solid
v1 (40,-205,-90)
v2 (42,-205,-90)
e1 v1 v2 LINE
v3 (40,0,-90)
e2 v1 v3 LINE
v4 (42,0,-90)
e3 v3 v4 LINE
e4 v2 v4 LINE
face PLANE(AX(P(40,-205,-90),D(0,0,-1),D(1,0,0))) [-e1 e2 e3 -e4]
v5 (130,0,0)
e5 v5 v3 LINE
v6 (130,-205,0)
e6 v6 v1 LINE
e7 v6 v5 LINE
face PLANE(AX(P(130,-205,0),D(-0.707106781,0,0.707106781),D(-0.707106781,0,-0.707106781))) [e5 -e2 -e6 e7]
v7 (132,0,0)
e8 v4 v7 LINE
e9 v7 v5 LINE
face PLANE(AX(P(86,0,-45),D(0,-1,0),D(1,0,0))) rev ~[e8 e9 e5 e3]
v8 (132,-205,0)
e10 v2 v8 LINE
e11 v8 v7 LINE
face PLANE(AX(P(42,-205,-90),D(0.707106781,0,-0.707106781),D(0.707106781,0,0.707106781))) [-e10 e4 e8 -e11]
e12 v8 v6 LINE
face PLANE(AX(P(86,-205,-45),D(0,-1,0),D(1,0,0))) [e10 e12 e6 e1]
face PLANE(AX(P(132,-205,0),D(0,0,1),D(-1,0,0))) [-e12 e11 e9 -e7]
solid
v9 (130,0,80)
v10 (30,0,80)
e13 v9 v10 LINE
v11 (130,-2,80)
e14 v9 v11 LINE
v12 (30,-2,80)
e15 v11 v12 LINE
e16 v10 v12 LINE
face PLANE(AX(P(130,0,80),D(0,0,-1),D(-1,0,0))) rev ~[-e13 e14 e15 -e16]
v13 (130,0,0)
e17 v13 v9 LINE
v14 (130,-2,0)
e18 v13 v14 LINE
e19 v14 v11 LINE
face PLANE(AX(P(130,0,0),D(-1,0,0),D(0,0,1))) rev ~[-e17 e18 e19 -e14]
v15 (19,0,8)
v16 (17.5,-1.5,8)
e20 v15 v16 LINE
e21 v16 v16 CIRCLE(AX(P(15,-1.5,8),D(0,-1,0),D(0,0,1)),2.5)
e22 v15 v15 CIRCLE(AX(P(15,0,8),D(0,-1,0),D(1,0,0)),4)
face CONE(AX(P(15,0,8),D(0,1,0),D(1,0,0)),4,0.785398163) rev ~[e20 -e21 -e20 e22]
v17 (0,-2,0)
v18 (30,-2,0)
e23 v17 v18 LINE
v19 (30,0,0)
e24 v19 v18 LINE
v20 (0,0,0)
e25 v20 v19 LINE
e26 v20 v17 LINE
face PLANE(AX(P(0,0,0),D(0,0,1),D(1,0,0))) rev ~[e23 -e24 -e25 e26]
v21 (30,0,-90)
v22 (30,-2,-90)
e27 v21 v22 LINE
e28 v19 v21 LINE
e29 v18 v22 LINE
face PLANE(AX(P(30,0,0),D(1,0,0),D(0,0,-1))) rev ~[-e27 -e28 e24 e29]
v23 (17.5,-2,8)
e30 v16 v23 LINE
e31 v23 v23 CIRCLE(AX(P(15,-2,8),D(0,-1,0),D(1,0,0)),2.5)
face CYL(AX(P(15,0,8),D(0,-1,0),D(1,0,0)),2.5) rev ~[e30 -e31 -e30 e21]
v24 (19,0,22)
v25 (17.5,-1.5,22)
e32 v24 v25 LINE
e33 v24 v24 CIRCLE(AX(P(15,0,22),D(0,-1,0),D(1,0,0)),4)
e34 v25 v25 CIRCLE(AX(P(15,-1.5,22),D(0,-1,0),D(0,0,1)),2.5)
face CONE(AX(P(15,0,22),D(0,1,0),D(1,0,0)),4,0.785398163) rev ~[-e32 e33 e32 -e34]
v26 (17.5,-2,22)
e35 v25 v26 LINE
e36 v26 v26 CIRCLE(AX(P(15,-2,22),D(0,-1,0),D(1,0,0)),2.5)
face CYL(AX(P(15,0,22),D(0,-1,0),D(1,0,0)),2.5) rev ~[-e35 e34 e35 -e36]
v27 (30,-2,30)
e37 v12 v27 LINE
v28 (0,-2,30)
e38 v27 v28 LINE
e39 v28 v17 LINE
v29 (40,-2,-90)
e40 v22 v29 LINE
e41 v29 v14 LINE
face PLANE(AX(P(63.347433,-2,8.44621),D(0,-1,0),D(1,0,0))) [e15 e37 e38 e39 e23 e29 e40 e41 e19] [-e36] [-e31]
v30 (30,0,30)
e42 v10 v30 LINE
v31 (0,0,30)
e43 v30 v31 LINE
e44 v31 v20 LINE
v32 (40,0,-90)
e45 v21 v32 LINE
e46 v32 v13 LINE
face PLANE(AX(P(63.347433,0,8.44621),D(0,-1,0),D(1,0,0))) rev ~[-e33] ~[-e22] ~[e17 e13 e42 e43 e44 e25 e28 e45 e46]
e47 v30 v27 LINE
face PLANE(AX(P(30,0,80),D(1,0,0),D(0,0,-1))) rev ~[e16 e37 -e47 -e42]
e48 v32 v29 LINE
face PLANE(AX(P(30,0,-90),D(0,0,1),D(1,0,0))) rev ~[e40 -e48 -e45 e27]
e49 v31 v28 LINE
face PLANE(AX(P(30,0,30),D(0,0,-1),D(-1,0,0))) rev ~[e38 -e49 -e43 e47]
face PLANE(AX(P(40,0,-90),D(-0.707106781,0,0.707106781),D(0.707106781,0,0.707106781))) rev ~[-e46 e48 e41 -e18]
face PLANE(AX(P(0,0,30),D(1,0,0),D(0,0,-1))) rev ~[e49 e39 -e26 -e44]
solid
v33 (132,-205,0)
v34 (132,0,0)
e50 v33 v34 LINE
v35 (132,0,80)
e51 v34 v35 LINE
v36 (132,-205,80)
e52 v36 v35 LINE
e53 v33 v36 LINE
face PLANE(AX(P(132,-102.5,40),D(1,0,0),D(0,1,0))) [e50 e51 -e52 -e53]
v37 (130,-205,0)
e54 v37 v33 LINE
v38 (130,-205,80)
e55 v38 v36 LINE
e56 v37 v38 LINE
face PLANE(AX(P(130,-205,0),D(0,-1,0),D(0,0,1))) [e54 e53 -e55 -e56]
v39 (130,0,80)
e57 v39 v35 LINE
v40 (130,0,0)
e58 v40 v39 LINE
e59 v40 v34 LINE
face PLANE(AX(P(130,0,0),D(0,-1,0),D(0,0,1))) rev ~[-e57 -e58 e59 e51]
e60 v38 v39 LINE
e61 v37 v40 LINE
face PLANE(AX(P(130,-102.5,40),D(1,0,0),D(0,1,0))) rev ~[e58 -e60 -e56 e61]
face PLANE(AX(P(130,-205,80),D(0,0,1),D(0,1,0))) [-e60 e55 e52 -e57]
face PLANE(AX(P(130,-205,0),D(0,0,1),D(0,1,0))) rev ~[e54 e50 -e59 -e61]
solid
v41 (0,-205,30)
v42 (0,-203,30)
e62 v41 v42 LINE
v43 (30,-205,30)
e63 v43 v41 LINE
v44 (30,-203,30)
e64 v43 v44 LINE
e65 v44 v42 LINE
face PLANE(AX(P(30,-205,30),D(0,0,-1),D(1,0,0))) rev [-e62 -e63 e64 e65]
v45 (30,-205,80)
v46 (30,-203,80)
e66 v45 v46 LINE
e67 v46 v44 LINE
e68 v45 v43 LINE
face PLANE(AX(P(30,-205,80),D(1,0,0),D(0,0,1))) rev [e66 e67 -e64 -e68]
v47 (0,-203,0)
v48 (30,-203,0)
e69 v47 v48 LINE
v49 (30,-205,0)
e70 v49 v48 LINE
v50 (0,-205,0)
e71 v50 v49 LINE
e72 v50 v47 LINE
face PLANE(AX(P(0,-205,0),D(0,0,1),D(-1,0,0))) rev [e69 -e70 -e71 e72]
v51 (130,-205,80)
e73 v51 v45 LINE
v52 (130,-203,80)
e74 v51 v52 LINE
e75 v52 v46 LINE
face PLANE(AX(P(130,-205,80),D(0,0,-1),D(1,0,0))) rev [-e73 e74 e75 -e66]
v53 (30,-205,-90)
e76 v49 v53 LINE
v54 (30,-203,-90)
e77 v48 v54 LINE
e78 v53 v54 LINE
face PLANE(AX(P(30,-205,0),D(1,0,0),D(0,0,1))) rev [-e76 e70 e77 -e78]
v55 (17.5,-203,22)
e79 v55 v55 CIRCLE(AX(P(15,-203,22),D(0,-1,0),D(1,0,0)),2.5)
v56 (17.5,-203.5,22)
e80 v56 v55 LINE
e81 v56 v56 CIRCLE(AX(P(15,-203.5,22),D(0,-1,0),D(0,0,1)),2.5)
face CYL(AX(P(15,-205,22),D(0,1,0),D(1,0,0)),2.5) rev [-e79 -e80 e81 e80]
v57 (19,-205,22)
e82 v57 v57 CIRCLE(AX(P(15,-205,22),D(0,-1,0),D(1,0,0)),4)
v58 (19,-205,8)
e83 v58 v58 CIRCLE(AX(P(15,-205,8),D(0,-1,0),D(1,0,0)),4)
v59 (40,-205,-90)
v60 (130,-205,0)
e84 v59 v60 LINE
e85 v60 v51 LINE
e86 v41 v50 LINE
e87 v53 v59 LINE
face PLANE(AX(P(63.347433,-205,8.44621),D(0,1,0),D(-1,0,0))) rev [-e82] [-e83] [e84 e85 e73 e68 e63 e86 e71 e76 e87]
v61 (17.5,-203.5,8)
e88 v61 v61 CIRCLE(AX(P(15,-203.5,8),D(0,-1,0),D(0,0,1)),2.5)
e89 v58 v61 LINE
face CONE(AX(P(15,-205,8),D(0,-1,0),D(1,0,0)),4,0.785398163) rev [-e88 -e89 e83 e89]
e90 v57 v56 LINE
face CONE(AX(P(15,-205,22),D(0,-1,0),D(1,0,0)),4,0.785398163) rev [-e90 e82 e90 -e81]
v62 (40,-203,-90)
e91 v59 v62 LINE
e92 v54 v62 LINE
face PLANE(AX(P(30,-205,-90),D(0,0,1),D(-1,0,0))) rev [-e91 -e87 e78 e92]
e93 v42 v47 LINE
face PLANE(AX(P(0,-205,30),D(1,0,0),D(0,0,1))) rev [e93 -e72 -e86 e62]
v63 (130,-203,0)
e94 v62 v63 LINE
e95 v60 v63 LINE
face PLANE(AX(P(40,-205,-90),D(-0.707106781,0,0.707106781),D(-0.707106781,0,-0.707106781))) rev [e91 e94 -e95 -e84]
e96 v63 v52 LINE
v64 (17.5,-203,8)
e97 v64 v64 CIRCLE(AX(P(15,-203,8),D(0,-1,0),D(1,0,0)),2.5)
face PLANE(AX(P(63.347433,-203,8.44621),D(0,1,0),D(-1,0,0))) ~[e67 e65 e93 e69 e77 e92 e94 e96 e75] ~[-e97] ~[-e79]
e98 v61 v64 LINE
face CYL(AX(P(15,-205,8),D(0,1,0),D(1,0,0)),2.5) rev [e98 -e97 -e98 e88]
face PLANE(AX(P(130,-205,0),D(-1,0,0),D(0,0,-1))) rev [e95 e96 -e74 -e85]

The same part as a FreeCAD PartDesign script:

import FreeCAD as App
import Part
import Sketcher
Q = App.Units.Quantity

doc = App.newDocument("Part")
body = doc.addObject("PartDesign::Body", "Body")

# Sketch on XZ plane
sketch1 = doc.addObject("Sketcher::SketchObject", "Sketch")
body.addObject(sketch1)
sketch1.AttachmentSupport = (doc.XZ_Plane, [""])
sketch1.MapMode = "FlatFace"
sketch1.addGeometry([
    Part.LineSegment(App.Vector(0, 30, 0), App.Vector(0, 0, 0)),  # 0
    Part.LineSegment(App.Vector(0, 0, 0), App.Vector(30, 0, 0)),  # 1
    Part.LineSegment(App.Vector(30, 0, 0), App.Vector(30, -90, 0)),  # 2
    Part.LineSegment(App.Vector(30, -90, 0), App.Vector(40, -90, 0)),  # 3
    Part.LineSegment(App.Vector(40, -90, 0), App.Vector(130, 0, 0)),  # 4
    Part.LineSegment(App.Vector(130, 0, 0), App.Vector(130, 80, 0)),  # 5
    Part.LineSegment(App.Vector(130, 80, 0), App.Vector(30, 80, 0)),  # 6
    Part.LineSegment(App.Vector(30, 80, 0), App.Vector(30, 30, 0)),  # 7
    Part.LineSegment(App.Vector(30, 30, 0), App.Vector(0, 30, 0)),  # 8
], False)
sketch1.addConstraint([
    Sketcher.Constraint("Coincident", 0, 2, 1, 1),
    Sketcher.Constraint("Coincident", 1, 2, 2, 1),
    Sketcher.Constraint("Coincident", 2, 2, 3, 1),
    Sketcher.Constraint("Coincident", 3, 2, 4, 1),
    Sketcher.Constraint("Coincident", 4, 2, 5, 1),
    Sketcher.Constraint("Coincident", 5, 2, 6, 1),
    Sketcher.Constraint("Coincident", 6, 2, 7, 1),
    Sketcher.Constraint("Coincident", 7, 2, 8, 1),
    Sketcher.Constraint("Coincident", 8, 2, 0, 1),
    Sketcher.Constraint("Vertical", 0),
    Sketcher.Constraint("Horizontal", 1),
    Sketcher.Constraint("Vertical", 2),
    Sketcher.Constraint("Horizontal", 3),
    Sketcher.Constraint("Vertical", 5),
    Sketcher.Constraint("Horizontal", 6),
    Sketcher.Constraint("Vertical", 7),
    Sketcher.Constraint("Horizontal", 8),
    Sketcher.Constraint("Coincident", 0, 2, -1, 1),
    Sketcher.Constraint("PointOnObject", 4, 2, -1),
    Sketcher.Constraint("Vertical", 2, 2, 6, 2),
    Sketcher.Constraint("Equal", 8, 0),
    Sketcher.Constraint("DistanceX", 1, 1, 1, 2, 30.0),
    Sketcher.Constraint("DistanceX", 3, 1, 3, 2, 10.0),
    Sketcher.Constraint("DistanceX", 6, 2, 6, 1, 100.0),
    Sketcher.Constraint("DistanceY", 2, 2, 2, 1, 90.0),
    Sketcher.Constraint("DistanceY", 5, 1, 5, 2, 80.0),
])
pad1 = doc.addObject("PartDesign::Pad", "Pad")
body.addObject(pad1)
pad1.Profile = sketch1
pad1.Length = 2

# Sketch on XZ plane
sketch2 = doc.addObject("Sketcher::SketchObject", "Sketch001")
body.addObject(sketch2)
sketch2.AttachmentSupport = (doc.XZ_Plane, [""])
sketch2.MapMode = "FlatFace"
sketch2.addGeometry([
    Part.Circle(App.Vector(15, 22, 0), App.Vector(0, 0, 1), 2.5),
    Part.Circle(App.Vector(15, 8, 0), App.Vector(0, 0, 1), 2.5),
], False)
sketch2.addConstraint([
    Sketcher.Constraint("Equal", 0, 1),
    Sketcher.Constraint("Vertical", 0, 3, 1, 3),
    Sketcher.Constraint("Diameter", 0, 5.0),
    Sketcher.Constraint("DistanceX", -1, 1, 0, 3, 15.0),
    Sketcher.Constraint("DistanceY", -1, 1, 0, 3, 22.0),
    Sketcher.Constraint("DistanceY", -1, 1, 1, 3, 8.0),
])
doc.recompute()
hole = doc.addObject("PartDesign::Hole", "Hole")
body.addObject(hole)
hole.Profile = sketch2
hole.ThreadType = "None"
hole.Diameter = 5
hole.DepthType = "Dimension"
hole.Depth = 10
hole.DrillPoint = "Flat"
hole.HoleCutType = "Countersink"
hole.HoleCutDiameter = 8
hole.HoleCutCountersinkAngle = 90
hole.Reversed = True
body2 = doc.addObject("PartDesign::Body", "Body001")
doc.recompute()

mirroring = doc.addObject("Part::Mirroring", "Mirroring")
mirroring.Source = body
mirroring.Base = App.Vector(0, -102.5, 0)
mirroring.Normal = App.Vector(0, -1, 0)
body2.BaseFeature = mirroring
doc.recompute()
body3 = doc.addObject("PartDesign::Body", "Body002")

# Sketch on YZ plane
sketch3 = doc.addObject("Sketcher::SketchObject", "Sketch002")
body3.addObject(sketch3)
sketch3.AttachmentSupport = (doc.getObject("YZ_Plane002"), [""])
sketch3.MapMode = "FlatFace"
sketch3.AttachmentOffset = App.Placement(App.Vector(0, 0, 130), App.Rotation())
sketch3.addGeometry([
    Part.LineSegment(App.Vector(-205, 80, 0), App.Vector(-205, 0, 0)),
    Part.LineSegment(App.Vector(-205, 0, 0), App.Vector(0, 0, 0)),
    Part.LineSegment(App.Vector(0, 0, 0), App.Vector(0, 80, 0)),
    Part.LineSegment(App.Vector(0, 80, 0), App.Vector(-205, 80, 0)),
], False)
sketch3.addConstraint([
    Sketcher.Constraint("Coincident", 0, 2, 1, 1),
    Sketcher.Constraint("Coincident", 1, 2, 2, 1),
    Sketcher.Constraint("Coincident", 2, 2, 3, 1),
    Sketcher.Constraint("Coincident", 3, 2, 0, 1),
    Sketcher.Constraint("Vertical", 0),
    Sketcher.Constraint("Horizontal", 1),
    Sketcher.Constraint("Vertical", 2),
    Sketcher.Constraint("Horizontal", 3),
    Sketcher.Constraint("Coincident", 1, 2, -1, 1),
    Sketcher.Constraint("DistanceX", 1, 1, 1, 2, 205.0),
    Sketcher.Constraint("DistanceY", 0, 2, 0, 1, 80.0),
])
pad2 = doc.addObject("PartDesign::Pad", "Pad001")
body3.addObject(pad2)
pad2.Profile = sketch3
pad2.Length = 2
body4 = doc.addObject("PartDesign::Body", "Body003")

# Sketch on XZ plane
sketch4 = doc.addObject("Sketcher::SketchObject", "Sketch003")
body4.addObject(sketch4)
sketch4.AttachmentSupport = (doc.getObject("XZ_Plane003"), [""])
sketch4.MapMode = "FlatFace"
sketch4.AttachmentOffset = App.Placement(App.Vector(0, 0, 205), App.Rotation())
sketch4.addGeometry([
    Part.LineSegment(App.Vector(132, 0, 0), App.Vector(130, 0, 0)),
    Part.LineSegment(App.Vector(130, 0, 0), App.Vector(40, -90, 0)),
    Part.LineSegment(App.Vector(40, -90, 0), App.Vector(42, -90, 0)),
    Part.LineSegment(App.Vector(42, -90, 0), App.Vector(132, 0, 0)),
], False)
sketch4.addConstraint([
    Sketcher.Constraint("Coincident", 0, 2, 1, 1),
    Sketcher.Constraint("Coincident", 1, 2, 2, 1),
    Sketcher.Constraint("Coincident", 2, 2, 3, 1),
    Sketcher.Constraint("Coincident", 3, 2, 0, 1),
    Sketcher.Constraint("Horizontal", 0),
    Sketcher.Constraint("Horizontal", 2),
    Sketcher.Constraint("PointOnObject", 0, 2, -1),
    Sketcher.Constraint("Parallel", 1, 3),
    Sketcher.Constraint("DistanceX", 0, 2, 0, 1, 2.0),
    Sketcher.Constraint("Angle", 1, Q("-135 deg")),
    Sketcher.Constraint("DistanceX", -1, 1, 0, 2, 130.0),
    Sketcher.Constraint("DistanceX", -1, 1, 1, 2, 40.0),
])
pad3 = doc.addObject("PartDesign::Pad", "Pad002")
body4.addObject(pad3)
pad3.Profile = sketch4
pad3.Length = 205
pad3.Reversed = True
mirroring.Visibility = False

doc.recompute()
